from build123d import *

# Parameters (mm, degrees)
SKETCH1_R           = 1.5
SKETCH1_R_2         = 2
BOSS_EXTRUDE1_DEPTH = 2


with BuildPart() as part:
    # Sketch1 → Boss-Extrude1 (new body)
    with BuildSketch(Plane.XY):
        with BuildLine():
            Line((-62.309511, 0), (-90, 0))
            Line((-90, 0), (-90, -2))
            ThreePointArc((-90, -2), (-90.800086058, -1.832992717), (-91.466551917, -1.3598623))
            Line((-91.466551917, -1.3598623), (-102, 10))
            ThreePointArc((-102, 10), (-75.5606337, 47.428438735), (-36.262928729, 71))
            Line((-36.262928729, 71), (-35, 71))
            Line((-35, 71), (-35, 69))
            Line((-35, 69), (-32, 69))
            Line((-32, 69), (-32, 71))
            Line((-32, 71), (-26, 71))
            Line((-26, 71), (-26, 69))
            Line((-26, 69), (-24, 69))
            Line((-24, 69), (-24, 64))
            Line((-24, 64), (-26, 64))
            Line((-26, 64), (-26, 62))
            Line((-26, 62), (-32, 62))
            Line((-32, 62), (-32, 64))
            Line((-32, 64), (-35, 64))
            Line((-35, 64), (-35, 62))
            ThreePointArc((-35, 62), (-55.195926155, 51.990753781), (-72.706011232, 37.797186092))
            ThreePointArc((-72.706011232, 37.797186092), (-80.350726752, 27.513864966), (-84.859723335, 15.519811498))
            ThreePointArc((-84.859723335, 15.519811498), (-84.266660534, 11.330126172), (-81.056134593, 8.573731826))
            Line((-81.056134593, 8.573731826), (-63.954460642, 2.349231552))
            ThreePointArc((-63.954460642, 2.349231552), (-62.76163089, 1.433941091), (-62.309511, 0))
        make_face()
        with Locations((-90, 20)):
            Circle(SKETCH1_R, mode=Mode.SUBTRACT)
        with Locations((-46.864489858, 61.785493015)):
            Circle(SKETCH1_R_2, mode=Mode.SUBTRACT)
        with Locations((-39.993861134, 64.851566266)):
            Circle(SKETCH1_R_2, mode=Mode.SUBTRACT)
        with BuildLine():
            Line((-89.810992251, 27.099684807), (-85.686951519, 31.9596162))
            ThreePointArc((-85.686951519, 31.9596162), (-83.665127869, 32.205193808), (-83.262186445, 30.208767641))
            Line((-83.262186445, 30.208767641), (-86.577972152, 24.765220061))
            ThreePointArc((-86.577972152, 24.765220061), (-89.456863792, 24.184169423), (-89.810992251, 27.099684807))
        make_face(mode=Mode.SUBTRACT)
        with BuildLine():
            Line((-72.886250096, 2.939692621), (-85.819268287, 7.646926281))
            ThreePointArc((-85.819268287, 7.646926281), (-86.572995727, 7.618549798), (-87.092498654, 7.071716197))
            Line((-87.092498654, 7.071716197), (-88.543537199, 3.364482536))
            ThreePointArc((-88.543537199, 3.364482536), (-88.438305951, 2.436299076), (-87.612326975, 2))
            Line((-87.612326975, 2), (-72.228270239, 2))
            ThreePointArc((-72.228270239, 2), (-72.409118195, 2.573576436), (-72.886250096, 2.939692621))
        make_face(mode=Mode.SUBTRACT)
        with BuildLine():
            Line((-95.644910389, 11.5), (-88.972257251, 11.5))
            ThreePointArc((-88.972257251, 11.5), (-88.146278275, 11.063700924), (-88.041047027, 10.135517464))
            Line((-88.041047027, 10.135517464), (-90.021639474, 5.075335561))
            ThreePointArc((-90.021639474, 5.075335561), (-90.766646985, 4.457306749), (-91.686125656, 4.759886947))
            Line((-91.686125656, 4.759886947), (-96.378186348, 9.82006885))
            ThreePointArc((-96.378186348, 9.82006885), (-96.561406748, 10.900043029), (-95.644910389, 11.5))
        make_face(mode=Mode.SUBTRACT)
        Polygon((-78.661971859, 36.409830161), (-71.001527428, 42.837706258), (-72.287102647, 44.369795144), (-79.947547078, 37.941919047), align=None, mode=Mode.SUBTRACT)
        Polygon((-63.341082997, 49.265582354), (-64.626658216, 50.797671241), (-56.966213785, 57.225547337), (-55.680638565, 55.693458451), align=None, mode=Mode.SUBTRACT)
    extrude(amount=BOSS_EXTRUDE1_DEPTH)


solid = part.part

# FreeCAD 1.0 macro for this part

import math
import FreeCAD as App
import Part
import Sketcher

V = App.Vector
Q = App.Units.Quantity


def add_polygon(sketch, points):
    """Adds a closed chain of lines whose ends are joined by coincident constraints."""
    first, n = sketch.GeometryCount, len(points)
    for a, b in zip(points, points[1:] + points[:1]):
        sketch.addGeometry(Part.LineSegment(App.Vector(*a, 0), App.Vector(*b, 0)), False)
    for i in range(n):
        sketch.addConstraint(Sketcher.Constraint("Coincident", first + i, 2, first + (i + 1) % n, 1))

doc = App.newDocument("Part")
body = doc.addObject("PartDesign::Body", "Body")

sketch1 = body.newObject("Sketcher::SketchObject", "Sketch")
sketch1.AttachmentSupport = (doc.getObject("XY_Plane"), [""])
sketch1.MapMode = "FlatFace"
sketch1.addGeometry(Part.LineSegment(V(-90, 0, 0), V(-62.3, 0, 0)), False)
sketch1.addGeometry(Part.ArcOfCircle(Part.Circle(V(-64.8, 0, 0), V(0, 0, 1), 2.5), math.radians(0), math.radians(70)), False)
sketch1.addGeometry(Part.LineSegment(V(-64, 2.3, 0), V(-81.1, 8.6, 0)), False)
sketch1.addGeometry(Part.ArcOfCircle(Part.Circle(V(-79, 14.2, 0), V(0, 0, 1), 6), math.radians(167), math.radians(250)), False)
sketch1.addGeometry(Part.ArcOfCircle(Part.Circle(V(-40, 5.5, 0), V(0, 0, 1), 46), math.radians(135), math.radians(167)), False)
sketch1.addGeometry(Part.ArcOfCircle(Part.Circle(V(0, -34, 0), V(0, 0, 1), 102.2), math.radians(110), math.radians(135)), False)
sketch1.addGeometry(Part.LineSegment(V(-35, 62, 0), V(-35, 64, 0)), False)
sketch1.addGeometry(Part.LineSegment(V(-35, 64, 0), V(-32, 64, 0)), False)
sketch1.addGeometry(Part.LineSegment(V(-32, 64, 0), V(-32, 62, 0)), False)
sketch1.addGeometry(Part.LineSegment(V(-32, 62, 0), V(-26, 62, 0)), False)
sketch1.addGeometry(Part.LineSegment(V(-26, 62, 0), V(-26, 64, 0)), False)
sketch1.addGeometry(Part.LineSegment(V(-26, 64, 0), V(-24, 64, 0)), False)
sketch1.addGeometry(Part.LineSegment(V(-24, 64, 0), V(-24, 69, 0)), False)
sketch1.addGeometry(Part.LineSegment(V(-24, 69, 0), V(-26, 69, 0)), False)
sketch1.addGeometry(Part.LineSegment(V(-26, 69, 0), V(-26, 71, 0)), False)
sketch1.addGeometry(Part.LineSegment(V(-26, 71, 0), V(-32, 71, 0)), False)
sketch1.addGeometry(Part.LineSegment(V(-32, 71, 0), V(-32, 69, 0)), False)
sketch1.addGeometry(Part.LineSegment(V(-32, 69, 0), V(-35, 69, 0)), False)
sketch1.addGeometry(Part.LineSegment(V(-35, 69, 0), V(-35, 71, 0)), False)
sketch1.addGeometry(Part.LineSegment(V(-35, 71, 0), V(-36.3, 71, 0)), False)
sketch1.addGeometry(Part.ArcOfCircle(Part.Circle(V(0, -34, 0), V(0, 0, 1), 111.1), math.radians(109), math.radians(157)), False)
sketch1.addGeometry(Part.LineSegment(V(-102, 10, 0), V(-91.5, -1.4, 0)), False)
sketch1.addGeometry(Part.ArcOfCircle(Part.Circle(V(-90, 0, 0), V(0, 0, 1), 2), math.radians(-137), math.radians(-90)), False)
sketch1.addGeometry(Part.LineSegment(V(-90, -2, 0), V(-90, 0, 0)), False)
sketch1.addGeometry(Part.ArcOfCircle(Part.Circle(V(-73.2, 2, 0), V(0, 0, 1), 1), math.radians(0), math.radians(70)), False)
sketch1.addGeometry(Part.LineSegment(V(-72.2, 2, 0), V(-87.6, 2, 0)), False)
sketch1.addGeometry(Part.ArcOfCircle(Part.Circle(V(-87.6, 3, 0), V(0, 0, 1), 1), math.radians(159), math.radians(270)), False)
sketch1.addGeometry(Part.LineSegment(V(-88.5, 3.4, 0), V(-87.1, 7.1, 0)), False)
sketch1.addGeometry(Part.ArcOfCircle(Part.Circle(V(-86.2, 6.7, 0), V(0, 0, 1), 1), math.radians(70), math.radians(159)), False)
sketch1.addGeometry(Part.LineSegment(V(-85.8, 7.6, 0), V(-72.9, 2.9, 0)), False)
sketch1.addGeometry(Part.LineSegment(V(-95.6, 11.5, 0), V(-89, 11.5, 0)), False)
sketch1.addGeometry(Part.ArcOfCircle(Part.Circle(V(-89, 10.5, 0), V(0, 0, 1), 1), math.radians(-21), math.radians(90)), False)
sketch1.addGeometry(Part.LineSegment(V(-88, 10.1, 0), V(-90, 5.1, 0)), False)
sketch1.addGeometry(Part.ArcOfCircle(Part.Circle(V(-91, 5.4, 0), V(0, 0, 1), 1), math.radians(-137), math.radians(-21)), False)
sketch1.addGeometry(Part.LineSegment(V(-91.7, 4.8, 0), V(-96.4, 9.8, 0)), False)
sketch1.addGeometry(Part.ArcOfCircle(Part.Circle(V(-95.6, 10.5, 0), V(0, 0, 1), 1), math.radians(90), math.radians(223)), False)
sketch1.addGeometry(Part.Circle(V(-90, 20, 0), V(0, 0, 1), 1.5), False)
sketch1.addGeometry(Part.LineSegment(V(-89.8, 27.1, 0), V(-85.7, 32, 0)), False)
sketch1.addGeometry(Part.ArcOfCircle(Part.Circle(V(-84.5, 31, 0), V(0, 0, 1), 1.5), math.radians(-31), math.radians(140)), False)
sketch1.addGeometry(Part.LineSegment(V(-83.3, 30.2, 0), V(-86.6, 24.8, 0)), False)
sketch1.addGeometry(Part.ArcOfCircle(Part.Circle(V(-88.3, 25.8, 0), V(0, 0, 1), 2), math.radians(140), math.radians(329)), False)
sketch1.addGeometry(Part.Circle(V(-40, 64.9, 0), V(0, 0, 1), 2), False)
sketch1.addGeometry(Part.Circle(V(-46.9, 61.8, 0), V(0, 0, 1), 2), False)
add_polygon(sketch1, [(-63.3, 49.3), (-64.6, 50.8), (-57, 57.2), (-55.7, 55.7)])
add_polygon(sketch1, [(-78.7, 36.4), (-79.9, 37.9), (-72.3, 44.4), (-71, 42.8)])
sketch1.addConstraint([
    Sketcher.Constraint("Coincident", 0, 2, 1, 1),
    Sketcher.Constraint("Tangent", 1, 2, 2, 1),
    Sketcher.Constraint("Tangent", 2, 2, 3, 2),
    Sketcher.Constraint("Tangent", 3, 1, 4, 2),
    Sketcher.Constraint("Tangent", 4, 1, 5, 2),
    Sketcher.Constraint("Coincident", 5, 1, 6, 1),
    Sketcher.Constraint("Coincident", 6, 2, 7, 1),
    Sketcher.Constraint("Coincident", 7, 2, 8, 1),
    Sketcher.Constraint("Coincident", 8, 2, 9, 1),
    Sketcher.Constraint("Coincident", 9, 2, 10, 1),
    Sketcher.Constraint("Coincident", 10, 2, 11, 1),
    Sketcher.Constraint("Coincident", 11, 2, 12, 1),
    Sketcher.Constraint("Coincident", 12, 2, 13, 1),
    Sketcher.Constraint("Coincident", 13, 2, 14, 1),
    Sketcher.Constraint("Coincident", 14, 2, 15, 1),
    Sketcher.Constraint("Coincident", 15, 2, 16, 1),
    Sketcher.Constraint("Coincident", 16, 2, 17, 1),
    Sketcher.Constraint("Coincident", 17, 2, 18, 1),
    Sketcher.Constraint("Coincident", 18, 2, 19, 1),
    Sketcher.Constraint("Coincident", 19, 2, 20, 1),
    Sketcher.Constraint("Coincident", 20, 2, 21, 1),
    Sketcher.Constraint("Tangent", 21, 2, 22, 1),
    Sketcher.Constraint("Coincident", 22, 2, 23, 1),
    Sketcher.Constraint("Coincident", 23, 2, 0, 1),
    Sketcher.Constraint("Coincident", 24, 1, 25, 1),
    Sketcher.Constraint("Tangent", 25, 2, 26, 2),
    Sketcher.Constraint("Tangent", 26, 1, 27, 1),
    Sketcher.Constraint("Tangent", 27, 2, 28, 2),
    Sketcher.Constraint("Tangent", 28, 1, 29, 1),
    Sketcher.Constraint("Tangent", 29, 2, 24, 2),
    Sketcher.Constraint("Tangent", 30, 2, 31, 2),
    Sketcher.Constraint("Tangent", 31, 1, 32, 1),
    Sketcher.Constraint("Tangent", 32, 2, 33, 2),
    Sketcher.Constraint("Tangent", 33, 1, 34, 1),
    Sketcher.Constraint("Tangent", 34, 2, 35, 2),
    Sketcher.Constraint("Tangent", 35, 1, 30, 1),
    Sketcher.Constraint("Tangent", 37, 2, 38, 2),
    Sketcher.Constraint("Tangent", 38, 1, 39, 1),
    Sketcher.Constraint("Tangent", 39, 2, 40, 2),
    Sketcher.Constraint("Tangent", 40, 1, 37, 1),
    Sketcher.Constraint("Horizontal", 0),
    Sketcher.Constraint("Vertical", 6),
    Sketcher.Constraint("Horizontal", 7),
    Sketcher.Constraint("Vertical", 8),
    Sketcher.Constraint("Horizontal", 9),
    Sketcher.Constraint("Vertical", 10),
    Sketcher.Constraint("Horizontal", 11),
    Sketcher.Constraint("Vertical", 12),
    Sketcher.Constraint("Horizontal", 13),
    Sketcher.Constraint("Vertical", 14),
    Sketcher.Constraint("Horizontal", 15),
    Sketcher.Constraint("Vertical", 16),
    Sketcher.Constraint("Horizontal", 17),
    Sketcher.Constraint("Vertical", 18),
    Sketcher.Constraint("Horizontal", 19),
    Sketcher.Constraint("Vertical", 23),
    Sketcher.Constraint("Horizontal", 25),
    Sketcher.Constraint("Horizontal", 30),
    Sketcher.Constraint("Coincident", 20, 3, 5, 3),
    Sketcher.Constraint("Coincident", 23, 2, 22, 3),
    Sketcher.Constraint("Equal", 24, 26),
    Sketcher.Constraint("Equal", 26, 28),
    Sketcher.Constraint("Equal", 28, 31),
    Sketcher.Constraint("Equal", 31, 33),
    Sketcher.Constraint("Equal", 33, 35),
    Sketcher.Constraint("Equal", 36, 38),
    Sketcher.Constraint("Equal", 22, 40),
    Sketcher.Constraint("Equal", 40, 41),
    Sketcher.Constraint("Equal", 41, 42),
    Sketcher.Constraint("PointOnObject", 1, 3, -1),
    Sketcher.Constraint("PointOnObject", 5, 3, -2),
    Sketcher.Constraint("PointOnObject", 22, 3, -1),
    Sketcher.Constraint("Parallel", 2, 29),
    Sketcher.Constraint("Parallel", 27, 32),
    Sketcher.Constraint("Parallel", 21, 34),
    Sketcher.Constraint("Perpendicular", 43, 44),
    Sketcher.Constraint("Perpendicular", 44, 45),
    Sketcher.Constraint("Perpendicular", 45, 46),
    Sketcher.Constraint("Perpendicular", 46, 47),
    Sketcher.Constraint("Perpendicular", 47, 48),
    Sketcher.Constraint("Perpendicular", 48, 49),
    Sketcher.Constraint("Perpendicular", 49, 50),
    Sketcher.Constraint("Horizontal", 5, 1, 8, 2),
    Sketcher.Constraint("Horizontal", 7, 2, 10, 2),
    Sketcher.Constraint("Horizontal", 13, 2, 16, 2),
    Sketcher.Constraint("Horizontal", 15, 2, 18, 2),
    Sketcher.Constraint("Vertical", 22, 3, 36, 3),
    Sketcher.Constraint("Vertical", 10, 2, 13, 2),
    Sketcher.Constraint("Vertical", 8, 2, 15, 2),
    Sketcher.Constraint("Vertical", 6, 2, 17, 2),
    Sketcher.Constraint("Equal", 13, 6),
    Sketcher.Constraint("Equal", 10, 14),
    Sketcher.Constraint("Equal", 18, 23),
    Sketcher.Constraint("Equal", 45, 47),
    Sketcher.Constraint("Equal", 46, 48),
    Sketcher.Constraint("Diameter", 36, 3.0),
    Sketcher.Constraint("Diameter", 41, 4.0),
    Sketcher.Constraint("Radius", 3, 6.0),
    Sketcher.Constraint("Radius", 24, 1.0),
    Sketcher.Constraint("Radius", 1, 2.5),
    Sketcher.Constraint("DistanceX", 7, 1, 7, 2, 3.0),
    Sketcher.Constraint("DistanceX", 9, 1, 9, 2, 6.0),
    Sketcher.Constraint("DistanceY", 12, 1, 12, 2, 5.0),
    Sketcher.Constraint("Angle", 2, Q("160 deg")),
    Sketcher.Constraint("Angle", 43, Q("130 deg")),
    Sketcher.Constraint("Distance", 43, 2.0),
    Sketcher.Constraint("Distance", 44, 10.0),
    Sketcher.Constraint("DistanceX", 4, 3, -1, 1, 40.0),
    Sketcher.Constraint("DistanceY", 5, 3, -1, 1, 34.0),
    Sketcher.Constraint("DistanceX", 22, 3, -1, 1, 90.0),
    Sketcher.Constraint("DistanceY", -1, 1, 24, 3, 2.0),
    Sketcher.Constraint("DistanceY", -1, 1, 26, 3, 3.0),
    Sketcher.Constraint("DistanceY", -1, 1, 36, 3, 20.0),
    Sketcher.Constraint("DistanceY", -1, 1, 5, 1, 62.0),
    Sketcher.Constraint("DistanceX", 6, 2, -1, 1, 35.0),
    Sketcher.Constraint("DistanceX", 20, 2, -1, 1, 102.0),
    Sketcher.Constraint("DistanceY", -1, 1, 20, 2, 10.0),
    Sketcher.Constraint("DistanceY", -1, 1, 4, 3, 5.5),
    Sketcher.Constraint("DistanceY", -1, 1, 31, 3, 10.5),
    Sketcher.Constraint("DistanceX", 0, 1, 0, 2, 27.690489),
    Sketcher.Constraint("DistanceX", 27, 2, -1, 1, 87.092499),
    Sketcher.Constraint("Distance", 29, 13.76303),
    Sketcher.Constraint("DistanceX", 25, 2, 25, 1, 15.384057),
    Sketcher.Constraint("DistanceX", 30, 1, 30, 2, 6.672653),
    Sketcher.Constraint("DistanceX", 33, 3, -1, 1, 90.95285),
    Sketcher.Constraint("DistanceX", 38, 3, -1, 1, 84.543242),
    Sketcher.Constraint("DistanceX", 41, 3, -1, 1, 39.993861),
    Sketcher.Constraint("DistanceX", 42, 3, -1, 1, 46.86449),
    Sketcher.Constraint("DistanceX", 37, 2, -1, 1, 85.686952),
    Sketcher.Constraint("DistanceY", -1, 1, 39, 2, 24.76522),
    Sketcher.Constraint("DistanceX", 43, 2, -1, 1, 64.626658),
    Sketcher.Constraint("DistanceY", -1, 1, 43, 2, 50.797671),
    Sketcher.Constraint("DistanceY", -1, 1, 47, 2, 37.941919),
    Sketcher.Constraint("DistanceX", 50, 2, -1, 1, 78.661972),
    Sketcher.Constraint("Distance", 37, 6.373903),
    Sketcher.Constraint("DistanceY", -1, 1, 41, 3, 64.851566),
    Sketcher.Constraint("DistanceY", -1, 1, 42, 3, 61.785493),
])
pad1 = body.newObject("PartDesign::Pad", "Pad")
pad1.Profile = sketch1
pad1.Length = 2

doc.recompute()
